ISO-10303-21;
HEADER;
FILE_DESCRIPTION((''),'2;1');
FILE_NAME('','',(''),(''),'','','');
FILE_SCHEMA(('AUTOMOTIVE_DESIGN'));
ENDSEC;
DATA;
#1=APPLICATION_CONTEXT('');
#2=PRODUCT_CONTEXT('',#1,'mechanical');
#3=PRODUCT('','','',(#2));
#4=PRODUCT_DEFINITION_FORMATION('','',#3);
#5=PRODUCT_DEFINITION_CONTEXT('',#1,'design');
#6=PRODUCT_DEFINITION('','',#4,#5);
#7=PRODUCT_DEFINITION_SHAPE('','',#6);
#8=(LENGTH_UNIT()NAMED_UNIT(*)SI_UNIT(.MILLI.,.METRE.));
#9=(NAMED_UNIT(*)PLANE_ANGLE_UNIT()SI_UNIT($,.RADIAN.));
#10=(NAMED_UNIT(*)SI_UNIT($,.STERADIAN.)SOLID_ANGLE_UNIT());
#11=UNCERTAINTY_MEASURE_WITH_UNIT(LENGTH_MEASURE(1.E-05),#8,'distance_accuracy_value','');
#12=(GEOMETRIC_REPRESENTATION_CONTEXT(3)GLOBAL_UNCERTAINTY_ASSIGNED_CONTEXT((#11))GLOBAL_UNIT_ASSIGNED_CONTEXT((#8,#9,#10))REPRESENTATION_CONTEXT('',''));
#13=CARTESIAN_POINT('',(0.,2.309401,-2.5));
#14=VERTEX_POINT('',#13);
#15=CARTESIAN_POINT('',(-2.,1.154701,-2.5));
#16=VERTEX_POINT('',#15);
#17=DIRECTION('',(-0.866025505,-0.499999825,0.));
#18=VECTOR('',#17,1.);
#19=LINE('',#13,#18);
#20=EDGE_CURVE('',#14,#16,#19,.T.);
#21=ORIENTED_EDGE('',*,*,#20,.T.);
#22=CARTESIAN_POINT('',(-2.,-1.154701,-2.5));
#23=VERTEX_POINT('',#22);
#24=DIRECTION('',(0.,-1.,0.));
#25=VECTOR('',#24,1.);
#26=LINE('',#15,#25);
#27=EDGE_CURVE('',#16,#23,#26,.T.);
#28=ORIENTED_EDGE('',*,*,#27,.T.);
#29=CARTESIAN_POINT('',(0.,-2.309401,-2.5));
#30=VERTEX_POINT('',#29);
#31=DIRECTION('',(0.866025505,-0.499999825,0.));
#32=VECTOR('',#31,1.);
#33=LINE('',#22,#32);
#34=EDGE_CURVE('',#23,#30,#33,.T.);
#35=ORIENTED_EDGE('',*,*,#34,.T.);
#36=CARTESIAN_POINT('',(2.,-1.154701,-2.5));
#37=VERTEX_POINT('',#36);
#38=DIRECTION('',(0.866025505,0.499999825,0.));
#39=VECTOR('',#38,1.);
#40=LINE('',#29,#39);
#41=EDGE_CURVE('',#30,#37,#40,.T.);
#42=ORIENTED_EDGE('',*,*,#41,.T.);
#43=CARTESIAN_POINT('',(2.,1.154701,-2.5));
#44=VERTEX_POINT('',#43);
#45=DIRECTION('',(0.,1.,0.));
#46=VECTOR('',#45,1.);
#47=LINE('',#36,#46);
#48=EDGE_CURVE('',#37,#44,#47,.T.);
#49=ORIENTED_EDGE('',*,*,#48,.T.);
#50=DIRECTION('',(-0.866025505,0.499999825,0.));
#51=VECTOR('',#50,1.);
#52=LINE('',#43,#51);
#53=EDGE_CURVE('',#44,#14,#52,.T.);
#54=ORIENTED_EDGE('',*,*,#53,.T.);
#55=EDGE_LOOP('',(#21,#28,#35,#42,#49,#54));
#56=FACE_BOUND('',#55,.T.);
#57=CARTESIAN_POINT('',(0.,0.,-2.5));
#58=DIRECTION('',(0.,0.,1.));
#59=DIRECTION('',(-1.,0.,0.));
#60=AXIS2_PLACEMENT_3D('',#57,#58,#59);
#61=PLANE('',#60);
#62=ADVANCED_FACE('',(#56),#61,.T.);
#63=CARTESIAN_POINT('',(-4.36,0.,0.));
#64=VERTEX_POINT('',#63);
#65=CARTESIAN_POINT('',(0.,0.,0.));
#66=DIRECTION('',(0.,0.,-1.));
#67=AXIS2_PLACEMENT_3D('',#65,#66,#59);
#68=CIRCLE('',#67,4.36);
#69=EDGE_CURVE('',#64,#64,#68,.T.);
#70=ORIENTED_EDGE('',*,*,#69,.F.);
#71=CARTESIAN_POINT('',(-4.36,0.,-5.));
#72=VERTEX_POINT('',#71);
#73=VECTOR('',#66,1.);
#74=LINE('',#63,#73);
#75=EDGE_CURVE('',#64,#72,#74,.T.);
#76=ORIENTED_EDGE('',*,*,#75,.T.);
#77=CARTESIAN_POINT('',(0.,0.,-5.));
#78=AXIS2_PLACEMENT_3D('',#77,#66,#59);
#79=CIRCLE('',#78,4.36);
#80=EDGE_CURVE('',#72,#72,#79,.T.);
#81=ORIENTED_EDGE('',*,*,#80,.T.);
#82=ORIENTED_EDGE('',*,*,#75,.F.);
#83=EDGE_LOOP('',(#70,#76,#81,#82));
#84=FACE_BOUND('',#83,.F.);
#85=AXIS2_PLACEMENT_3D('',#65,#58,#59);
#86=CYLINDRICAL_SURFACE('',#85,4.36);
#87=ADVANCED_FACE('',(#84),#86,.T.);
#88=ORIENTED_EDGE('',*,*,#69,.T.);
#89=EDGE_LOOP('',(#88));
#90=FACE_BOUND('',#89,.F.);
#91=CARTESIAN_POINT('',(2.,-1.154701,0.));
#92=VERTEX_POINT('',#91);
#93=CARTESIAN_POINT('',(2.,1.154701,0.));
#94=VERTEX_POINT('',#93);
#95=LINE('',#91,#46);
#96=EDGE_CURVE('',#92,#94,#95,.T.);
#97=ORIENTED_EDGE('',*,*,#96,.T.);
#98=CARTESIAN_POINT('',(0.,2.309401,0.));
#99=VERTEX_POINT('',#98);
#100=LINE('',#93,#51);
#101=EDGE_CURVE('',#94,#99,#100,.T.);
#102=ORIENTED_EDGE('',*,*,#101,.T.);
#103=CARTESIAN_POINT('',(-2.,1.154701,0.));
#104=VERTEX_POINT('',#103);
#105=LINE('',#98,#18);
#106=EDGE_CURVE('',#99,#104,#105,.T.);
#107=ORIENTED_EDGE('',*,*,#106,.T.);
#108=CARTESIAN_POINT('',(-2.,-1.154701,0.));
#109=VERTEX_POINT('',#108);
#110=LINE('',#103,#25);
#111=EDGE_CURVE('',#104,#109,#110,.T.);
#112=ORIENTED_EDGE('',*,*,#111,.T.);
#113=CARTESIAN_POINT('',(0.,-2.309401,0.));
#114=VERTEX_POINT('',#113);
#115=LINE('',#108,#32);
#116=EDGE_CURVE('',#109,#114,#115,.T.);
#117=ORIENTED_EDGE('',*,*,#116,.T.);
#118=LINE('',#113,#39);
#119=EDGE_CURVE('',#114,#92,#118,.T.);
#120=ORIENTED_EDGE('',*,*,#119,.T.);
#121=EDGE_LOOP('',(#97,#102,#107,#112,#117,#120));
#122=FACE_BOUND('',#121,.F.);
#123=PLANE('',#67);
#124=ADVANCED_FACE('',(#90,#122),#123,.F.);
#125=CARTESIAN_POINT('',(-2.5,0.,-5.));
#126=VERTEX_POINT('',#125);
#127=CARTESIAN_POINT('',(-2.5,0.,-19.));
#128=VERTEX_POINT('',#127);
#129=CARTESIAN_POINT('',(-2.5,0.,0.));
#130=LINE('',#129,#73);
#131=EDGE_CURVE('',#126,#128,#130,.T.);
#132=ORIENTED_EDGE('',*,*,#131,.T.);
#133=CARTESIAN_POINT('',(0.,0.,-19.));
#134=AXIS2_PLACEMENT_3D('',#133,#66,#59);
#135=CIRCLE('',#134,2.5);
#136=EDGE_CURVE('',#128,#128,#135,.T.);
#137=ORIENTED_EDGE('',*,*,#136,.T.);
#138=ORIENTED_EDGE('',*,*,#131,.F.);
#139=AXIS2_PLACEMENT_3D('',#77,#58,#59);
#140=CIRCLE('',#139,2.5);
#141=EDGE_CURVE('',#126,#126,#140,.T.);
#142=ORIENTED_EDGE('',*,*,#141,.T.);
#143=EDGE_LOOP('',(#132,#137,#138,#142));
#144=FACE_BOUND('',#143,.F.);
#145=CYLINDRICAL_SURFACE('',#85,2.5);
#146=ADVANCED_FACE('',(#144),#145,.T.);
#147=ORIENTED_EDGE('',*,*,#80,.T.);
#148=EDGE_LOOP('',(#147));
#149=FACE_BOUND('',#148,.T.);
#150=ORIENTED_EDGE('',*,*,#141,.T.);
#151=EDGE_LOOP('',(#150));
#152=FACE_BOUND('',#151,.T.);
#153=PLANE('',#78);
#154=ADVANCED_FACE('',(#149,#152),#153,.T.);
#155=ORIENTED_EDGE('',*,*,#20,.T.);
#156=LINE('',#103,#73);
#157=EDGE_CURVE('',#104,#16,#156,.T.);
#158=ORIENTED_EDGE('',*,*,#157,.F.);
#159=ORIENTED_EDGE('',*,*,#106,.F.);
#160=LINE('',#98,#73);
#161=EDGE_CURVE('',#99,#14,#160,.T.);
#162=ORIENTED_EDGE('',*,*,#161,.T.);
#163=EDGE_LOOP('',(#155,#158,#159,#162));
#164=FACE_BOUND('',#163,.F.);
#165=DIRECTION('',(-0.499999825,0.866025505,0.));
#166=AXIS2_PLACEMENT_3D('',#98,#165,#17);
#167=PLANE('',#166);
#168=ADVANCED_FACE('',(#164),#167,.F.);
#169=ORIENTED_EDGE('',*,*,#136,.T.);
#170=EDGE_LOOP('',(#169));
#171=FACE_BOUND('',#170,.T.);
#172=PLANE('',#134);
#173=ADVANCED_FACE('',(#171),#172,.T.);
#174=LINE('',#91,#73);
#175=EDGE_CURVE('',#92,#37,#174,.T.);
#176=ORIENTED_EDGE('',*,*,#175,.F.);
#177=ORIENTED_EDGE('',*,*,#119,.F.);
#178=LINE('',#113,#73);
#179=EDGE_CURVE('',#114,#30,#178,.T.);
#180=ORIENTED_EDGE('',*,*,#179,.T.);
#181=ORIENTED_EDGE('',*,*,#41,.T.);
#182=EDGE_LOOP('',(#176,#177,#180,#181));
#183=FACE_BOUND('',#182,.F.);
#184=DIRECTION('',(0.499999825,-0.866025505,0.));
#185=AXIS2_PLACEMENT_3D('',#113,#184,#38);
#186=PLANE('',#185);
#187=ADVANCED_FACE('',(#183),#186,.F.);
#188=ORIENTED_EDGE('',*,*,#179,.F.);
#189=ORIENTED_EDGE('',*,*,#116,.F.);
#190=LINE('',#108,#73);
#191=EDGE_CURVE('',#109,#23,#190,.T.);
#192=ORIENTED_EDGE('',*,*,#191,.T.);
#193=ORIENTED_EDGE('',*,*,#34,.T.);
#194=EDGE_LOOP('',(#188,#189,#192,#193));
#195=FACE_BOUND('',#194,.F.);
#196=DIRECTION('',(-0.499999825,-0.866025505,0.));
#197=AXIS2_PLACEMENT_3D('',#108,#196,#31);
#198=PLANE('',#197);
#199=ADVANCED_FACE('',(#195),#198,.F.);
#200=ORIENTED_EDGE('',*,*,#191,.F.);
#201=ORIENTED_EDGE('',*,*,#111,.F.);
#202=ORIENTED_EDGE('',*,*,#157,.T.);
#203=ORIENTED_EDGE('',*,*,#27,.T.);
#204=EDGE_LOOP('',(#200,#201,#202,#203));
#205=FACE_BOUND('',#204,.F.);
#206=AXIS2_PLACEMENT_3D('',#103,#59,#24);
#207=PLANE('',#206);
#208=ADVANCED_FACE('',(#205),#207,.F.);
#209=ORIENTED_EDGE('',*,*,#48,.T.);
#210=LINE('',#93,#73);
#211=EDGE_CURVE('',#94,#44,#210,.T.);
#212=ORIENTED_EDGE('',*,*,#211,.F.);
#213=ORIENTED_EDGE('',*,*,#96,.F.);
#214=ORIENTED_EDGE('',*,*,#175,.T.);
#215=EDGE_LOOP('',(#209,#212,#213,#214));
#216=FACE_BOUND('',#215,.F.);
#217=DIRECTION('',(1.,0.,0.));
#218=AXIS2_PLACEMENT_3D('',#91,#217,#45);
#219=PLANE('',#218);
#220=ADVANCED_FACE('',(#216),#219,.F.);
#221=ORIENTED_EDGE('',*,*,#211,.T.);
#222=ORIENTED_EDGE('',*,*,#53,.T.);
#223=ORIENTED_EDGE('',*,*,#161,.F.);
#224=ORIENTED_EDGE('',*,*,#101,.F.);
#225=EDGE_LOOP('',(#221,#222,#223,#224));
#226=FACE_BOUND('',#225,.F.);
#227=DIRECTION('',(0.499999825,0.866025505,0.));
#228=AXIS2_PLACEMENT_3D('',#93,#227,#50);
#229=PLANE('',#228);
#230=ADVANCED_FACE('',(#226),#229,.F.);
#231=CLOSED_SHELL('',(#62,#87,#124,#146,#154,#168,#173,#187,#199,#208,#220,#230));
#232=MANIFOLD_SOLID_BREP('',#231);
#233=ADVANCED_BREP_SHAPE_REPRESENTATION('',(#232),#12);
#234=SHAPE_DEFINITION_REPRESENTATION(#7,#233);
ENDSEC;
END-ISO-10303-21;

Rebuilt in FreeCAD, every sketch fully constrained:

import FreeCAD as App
import Part
import Sketcher

V = App.Vector
Q = App.Units.Quantity


def add_polygon(sketch, points):
    """Adds a closed chain of lines whose ends are joined by coincident constraints."""
    first, n = sketch.GeometryCount, len(points)
    for a, b in zip(points, points[1:] + points[:1]):
        sketch.addGeometry(Part.LineSegment(App.Vector(*a, 0), App.Vector(*b, 0)), False)
    for i in range(n):
        sketch.addConstraint(Sketcher.Constraint("Coincident", first + i, 2, first + (i + 1) % n, 1))

doc = App.newDocument("Part")
body = doc.addObject("PartDesign::Body", "Body")

# Sketch on XY plane
sketch1 = body.newObject("Sketcher::SketchObject", "Sketch")
sketch1.AttachmentSupport = (doc.getObject("XY_Plane"), [""])
sketch1.MapMode = "FlatFace"
sketch1.addGeometry(Part.Circle(V(0, 0, 0), V(0, 0, 1), 2.5), False)
sketch1.addConstraint([
    Sketcher.Constraint("Coincident", 0, 3, -1, 1),
    Sketcher.Constraint("Diameter", 0, 5.0),
])
pad1 = body.newObject("PartDesign::Pad", "Pad")
pad1.Profile = sketch1
pad1.Length = 19
body2 = doc.addObject("PartDesign::Body", "Body001")

# Sketch on XY plane
sketch2 = body2.newObject("Sketcher::SketchObject", "Sketch001")
sketch2.AttachmentSupport = (doc.getObject("XY_Plane001"), [""])
sketch2.MapMode = "FlatFace"
sketch2.addGeometry(Part.Circle(V(0, 0, 0), V(0, 0, 1), 4.4), False)
sketch2.addConstraint([
    Sketcher.Constraint("Coincident", 0, 3, -1, 1),
    Sketcher.Constraint("Diameter", 0, 8.72),
])
pad2 = body2.newObject("PartDesign::Pad", "Pad001")
pad2.Profile = sketch2
pad2.Length = 5
doc.recompute()

boolean = body2.newObject("PartDesign::Boolean", "Boolean")
boolean.Type = "Fuse"
boolean.addObjects([body])
body3 = doc.addObject("PartDesign::Body", "Body002")
doc.recompute()

body2.Placement = App.Placement(V(0, 0, 0), App.Rotation(V(0, 1, 0), 180))
boolean2 = body3.newObject("PartDesign::Boolean", "Boolean001")
boolean2.Type = "Fuse"
boolean2.addObjects([body2])

# Sketch on XY plane
sketch3 = body3.newObject("Sketcher::SketchObject", "Sketch002")
sketch3.AttachmentSupport = (doc.getObject("XY_Plane002"), [""])
sketch3.MapMode = "FlatFace"
add_polygon(sketch3, [(-2, 1.2), (-2, -1.2), (0, -2.3), (2, -1.2), (2, 1.2), (0, 2.3)])  # lines 0-5
sketch3.addConstraint([
    Sketcher.Constraint("Vertical", 0),
    Sketcher.Constraint("Vertical", 3),
    Sketcher.Constraint("Symmetric", 0, 2, 3, 2, -1, 1),
    Sketcher.Constraint("Symmetric", 1, 2, 4, 2, -1, 1),
    Sketcher.Constraint("PointOnObject", 1, 2, -2),
    Sketcher.Constraint("Parallel", 2, 5),
    Sketcher.Constraint("Horizontal", 0, 2, 2, 2),
    Sketcher.Constraint("Angle", 1, Q("-29.999988 deg")),
    Sketcher.Constraint("DistanceX", 0, 2, -1, 1, 2.0),
    Sketcher.Constraint("DistanceY", 0, 2, 0, 1, 2.309402),
])
pocket1 = body3.newObject("PartDesign::Pocket", "Pocket")
pocket1.Profile = sketch3
pocket1.Length = 2.5

doc.recompute()
